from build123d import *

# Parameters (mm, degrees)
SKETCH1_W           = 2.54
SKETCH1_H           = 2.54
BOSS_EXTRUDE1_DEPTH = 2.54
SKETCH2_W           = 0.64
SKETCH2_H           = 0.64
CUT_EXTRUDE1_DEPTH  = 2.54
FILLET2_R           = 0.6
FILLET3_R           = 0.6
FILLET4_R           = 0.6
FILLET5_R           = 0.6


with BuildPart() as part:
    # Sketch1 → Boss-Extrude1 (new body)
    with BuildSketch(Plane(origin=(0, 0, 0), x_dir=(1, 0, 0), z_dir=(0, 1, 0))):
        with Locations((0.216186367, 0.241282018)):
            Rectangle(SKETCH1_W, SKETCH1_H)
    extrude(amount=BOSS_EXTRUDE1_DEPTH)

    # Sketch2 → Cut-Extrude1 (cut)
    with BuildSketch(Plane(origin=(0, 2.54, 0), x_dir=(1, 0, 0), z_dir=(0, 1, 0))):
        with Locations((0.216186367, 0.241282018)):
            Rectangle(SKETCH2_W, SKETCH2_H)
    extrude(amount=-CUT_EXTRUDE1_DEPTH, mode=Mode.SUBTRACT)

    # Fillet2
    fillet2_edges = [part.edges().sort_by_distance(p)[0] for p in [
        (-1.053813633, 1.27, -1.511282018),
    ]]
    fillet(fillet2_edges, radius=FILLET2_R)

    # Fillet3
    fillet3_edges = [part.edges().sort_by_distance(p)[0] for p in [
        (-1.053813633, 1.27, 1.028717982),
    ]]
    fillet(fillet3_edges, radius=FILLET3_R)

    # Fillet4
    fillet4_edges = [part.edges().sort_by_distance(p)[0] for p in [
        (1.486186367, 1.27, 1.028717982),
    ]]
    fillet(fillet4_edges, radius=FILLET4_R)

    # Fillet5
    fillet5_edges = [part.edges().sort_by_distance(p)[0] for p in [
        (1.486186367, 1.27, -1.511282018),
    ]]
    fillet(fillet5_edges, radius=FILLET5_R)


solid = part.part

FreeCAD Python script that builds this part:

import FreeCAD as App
import Part
import Sketcher


def edges_at(feature, points):
    """Names of the edges that pass closest to the given points."""
    edges = feature.Shape.Edges
    near = lambda p: min(range(len(edges)), key=lambda i: edges[i].distToShape(Part.Vertex(*p))[0])
    return sorted({f"Edge{near(p) + 1}" for p in points})


def add_polygon(sketch, points):
    """Adds a closed chain of lines whose ends are joined by coincident constraints."""
    first, n = sketch.GeometryCount, len(points)
    for a, b in zip(points, points[1:] + points[:1]):
        sketch.addGeometry(Part.LineSegment(App.Vector(*a, 0), App.Vector(*b, 0)), False)
    for i in range(n):
        sketch.addConstraint(Sketcher.Constraint("Coincident", first + i, 2, first + (i + 1) % n, 1))

doc = App.newDocument("Part")
body = doc.addObject("PartDesign::Body", "Body")

sketch1 = body.newObject("Sketcher::SketchObject", "Sketch")
sketch1.AttachmentSupport = (doc.getObject("XZ_Plane"), [""])
sketch1.MapMode = "FlatFace"
add_polygon(sketch1, [(-1.053814, -1.511282), (-1.053814, 1.028718), (1.486186, 1.028718), (1.486186, -1.511282)])
sketch1.addConstraint(Sketcher.Constraint("Vertical", 0))
sketch1.addConstraint(Sketcher.Constraint("Horizontal", 1))
sketch1.addConstraint(Sketcher.Constraint("Vertical", 2))
sketch1.addConstraint(Sketcher.Constraint("Horizontal", 3))
sketch1.addConstraint(Sketcher.Constraint("Equal", 3, 0))
sketch1.addConstraint(Sketcher.Constraint("DistanceX", 1, 1, 1, 2, 2.54))
sketch1.addConstraint(Sketcher.Constraint("DistanceX", 0, 2, -1, 1, 1.053814))
sketch1.addConstraint(Sketcher.Constraint("DistanceY", -1, 1, 0, 2, 1.028718))
pad1 = body.newObject("PartDesign::Pad", "Pad")
pad1.Profile = sketch1
pad1.Length = 2.54
pad1.Reversed = True

sketch2 = body.newObject("Sketcher::SketchObject", "Sketch001")
sketch2.AttachmentSupport = (doc.getObject("XZ_Plane"), [""])
sketch2.MapMode = "FlatFace"
sketch2.AttachmentOffset = App.Placement(App.Vector(0, 0, -2.54), App.Rotation())
add_polygon(sketch2, [(-0.103814, -0.561282), (-0.103814, 0.078718), (0.536186, 0.078718), (0.536186, -0.561282)])
sketch2.addConstraint(Sketcher.Constraint("Vertical", 0))
sketch2.addConstraint(Sketcher.Constraint("Horizontal", 1))
sketch2.addConstraint(Sketcher.Constraint("Vertical", 2))
sketch2.addConstraint(Sketcher.Constraint("Horizontal", 3))
sketch2.addConstraint(Sketcher.Constraint("Equal", 3, 0))
sketch2.addConstraint(Sketcher.Constraint("DistanceX", 1, 1, 1, 2, 0.64))
sketch2.addConstraint(Sketcher.Constraint("DistanceX", 0, 2, -1, 1, 0.103814))
sketch2.addConstraint(Sketcher.Constraint("DistanceY", -1, 1, 0, 2, 0.078718))
pocket1 = body.newObject("PartDesign::Pocket", "Pocket")
pocket1.Profile = sketch2
pocket1.Length = 2.54
pocket1.Reversed = True
doc.recompute()

fillet = body.newObject("PartDesign::Fillet", "Fillet")
fillet.Base = (pocket1, edges_at(pocket1, [(-1.054, 1.27, -1.511)]))
fillet.Radius = 0.6
doc.recompute()

fillet2 = body.newObject("PartDesign::Fillet", "Fillet001")
fillet2.Base = (fillet, edges_at(fillet, [(-1.054, 1.27, 1.029)]))
fillet2.Radius = 0.6
doc.recompute()

fillet3 = body.newObject("PartDesign::Fillet", "Fillet002")
fillet3.Base = (fillet2, edges_at(fillet2, [(1.486, 1.27, 1.029)]))
fillet3.Radius = 0.6
doc.recompute()

fillet4 = body.newObject("PartDesign::Fillet", "Fillet003")
fillet4.Base = (fillet3, edges_at(fillet3, [(1.486, 1.27, -1.511)]))
fillet4.Radius = 0.6

doc.recompute()
